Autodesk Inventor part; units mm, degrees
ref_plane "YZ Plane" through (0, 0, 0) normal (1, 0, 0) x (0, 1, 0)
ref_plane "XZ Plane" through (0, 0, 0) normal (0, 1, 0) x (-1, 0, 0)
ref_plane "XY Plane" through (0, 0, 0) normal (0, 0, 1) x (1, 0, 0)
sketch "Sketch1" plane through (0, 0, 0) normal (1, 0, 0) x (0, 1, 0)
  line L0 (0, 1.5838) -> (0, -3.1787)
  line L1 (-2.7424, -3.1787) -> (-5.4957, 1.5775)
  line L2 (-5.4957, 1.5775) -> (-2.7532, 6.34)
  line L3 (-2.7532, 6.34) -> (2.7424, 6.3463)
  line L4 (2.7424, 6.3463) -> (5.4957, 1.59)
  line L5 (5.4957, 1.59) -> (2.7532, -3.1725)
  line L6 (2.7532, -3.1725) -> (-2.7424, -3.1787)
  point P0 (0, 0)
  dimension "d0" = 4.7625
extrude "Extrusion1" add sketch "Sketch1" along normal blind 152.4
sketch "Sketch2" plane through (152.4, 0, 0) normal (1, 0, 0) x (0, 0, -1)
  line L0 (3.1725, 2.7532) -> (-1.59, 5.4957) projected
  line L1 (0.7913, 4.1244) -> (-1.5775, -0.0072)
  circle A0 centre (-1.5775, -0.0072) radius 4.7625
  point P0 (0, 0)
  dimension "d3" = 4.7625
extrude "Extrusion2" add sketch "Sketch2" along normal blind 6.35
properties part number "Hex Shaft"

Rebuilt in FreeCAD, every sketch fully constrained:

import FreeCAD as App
import Part
import Sketcher
Q = App.Units.Quantity

doc = App.newDocument("Part")
body = doc.addObject("PartDesign::Body", "Body")

sketch1 = doc.addObject("Sketcher::SketchObject", "Sketch")
body.addObject(sketch1)
sketch1.AttachmentSupport = (doc.YZ_Plane, [""])
sketch1.MapMode = "FlatFace"
sketch1.addGeometry(Part.LineSegment(App.Vector(-5, 2, 0), App.Vector(-3, -3, 0)), False)
sketch1.addGeometry(Part.LineSegment(App.Vector(-3, -3, 0), App.Vector(3, -3, 0)), False)
sketch1.addGeometry(Part.LineSegment(App.Vector(3, -3, 0), App.Vector(5, 2, 0)), False)
sketch1.addGeometry(Part.LineSegment(App.Vector(5, 2, 0), App.Vector(3, 6, 0)), False)
sketch1.addGeometry(Part.LineSegment(App.Vector(3, 6, 0), App.Vector(-3, 6, 0)), False)
sketch1.addGeometry(Part.LineSegment(App.Vector(-3, 6, 0), App.Vector(-5, 2, 0)), False)
sketch1.addConstraint(Sketcher.Constraint("Coincident", 0, 2, 1, 1))
sketch1.addConstraint(Sketcher.Constraint("Coincident", 1, 2, 2, 1))
sketch1.addConstraint(Sketcher.Constraint("Coincident", 2, 2, 3, 1))
sketch1.addConstraint(Sketcher.Constraint("Coincident", 3, 2, 4, 1))
sketch1.addConstraint(Sketcher.Constraint("Coincident", 4, 2, 5, 1))
sketch1.addConstraint(Sketcher.Constraint("Coincident", 5, 2, 0, 1))
sketch1.addConstraint(Sketcher.Constraint("Parallel", 0, 3))
sketch1.addConstraint(Sketcher.Constraint("Parallel", 1, 4))
sketch1.addConstraint(Sketcher.Constraint("Parallel", 2, 5))
sketch1.addConstraint(Sketcher.Constraint("Equal", 0, 1))
sketch1.addConstraint(Sketcher.Constraint("Equal", 1, 2))
sketch1.addConstraint(Sketcher.Constraint("Equal", 2, 3))
sketch1.addConstraint(Sketcher.Constraint("DistanceY", 1, 2, 2, 2, Q("0.1875 in")))
sketch1.addConstraint(Sketcher.Constraint("DistanceY", 0, 2, 3, 2, Q("0.375 in")))
sketch1.addConstraint(Sketcher.Constraint("DistanceY", 2, 2, 4, 2, Q("0.187 in")))
sketch1.addConstraint(Sketcher.Constraint("DistanceX", -1, 1, 1, 2, Q("0.1084 in")))
sketch1.addConstraint(Sketcher.Constraint("DistanceY", 1, 2, -1, 1, Q("0.1249 in")))
sketch1.addConstraint(Sketcher.Constraint("DistanceX", 4, 2, -1, 1, Q("0.1084 in")))
pad1 = doc.addObject("PartDesign::Pad", "Pad")
body.addObject(pad1)
pad1.Profile = sketch1
pad1.Length = Q("6 in")

sketch2 = doc.addObject("Sketcher::SketchObject", "Sketch001")
body.addObject(sketch2)
sketch2.AttachmentSupport = (doc.YZ_Plane, [""])
sketch2.MapMode = "FlatFace"
sketch2.AttachmentOffset = App.Placement(App.Vector(0, 0, 6 * 25.4), App.Rotation())
sketch2.addGeometry(Part.Circle(App.Vector(0, 1.6, 0), App.Vector(0, 0, 1), 4.8), False)
sketch2.addConstraint(Sketcher.Constraint("Diameter", 0, Q("0.375 in")))
sketch2.addConstraint(Sketcher.Constraint("DistanceY", -1, 1, 0, 3, Q("0.0621 in")))
sketch2.addConstraint(Sketcher.Constraint("DistanceX", 0, 3, -1, 1, Q("0.0072 mm")))
pad2 = doc.addObject("PartDesign::Pad", "Pad001")
body.addObject(pad2)
pad2.Profile = sketch2
pad2.Length = Q("0.25 in")

doc.recompute()
